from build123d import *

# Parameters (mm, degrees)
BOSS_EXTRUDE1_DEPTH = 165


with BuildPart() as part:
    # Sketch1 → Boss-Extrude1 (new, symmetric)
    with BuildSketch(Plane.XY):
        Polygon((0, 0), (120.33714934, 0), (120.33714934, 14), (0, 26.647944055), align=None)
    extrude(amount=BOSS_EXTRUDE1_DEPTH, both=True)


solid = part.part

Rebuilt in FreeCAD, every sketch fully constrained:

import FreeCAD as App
import Part
import Sketcher
Q = App.Units.Quantity


def add_polygon(sketch, points):
    """Adds a closed chain of lines whose ends are joined by coincident constraints."""
    first, n = sketch.GeometryCount, len(points)
    for a, b in zip(points, points[1:] + points[:1]):
        sketch.addGeometry(Part.LineSegment(App.Vector(*a, 0), App.Vector(*b, 0)), False)
    for i in range(n):
        sketch.addConstraint(Sketcher.Constraint("Coincident", first + i, 2, first + (i + 1) % n, 1))

doc = App.newDocument("Part")
body = doc.addObject("PartDesign::Body", "Body")

# Sketch on XY plane
sketch1 = body.newObject("Sketcher::SketchObject", "Sketch")
sketch1.AttachmentSupport = (doc.getObject("XY_Plane"), [""])
sketch1.MapMode = "FlatFace"
add_polygon(sketch1, [(0, 0), (120, 0), (120, 14), (0, 27)])  # lines 0-3
sketch1.addConstraint([
    Sketcher.Constraint("Horizontal", 0),
    Sketcher.Constraint("Vertical", 1),
    Sketcher.Constraint("Vertical", 3),
    Sketcher.Constraint("Coincident", 3, 2, -1, 1),
    Sketcher.Constraint("DistanceY", 1, 1, 1, 2, Q("14 mm")),
    Sketcher.Constraint("Angle", 2, Q("174 deg")),
    Sketcher.Constraint("Distance", 2, Q("121 mm")),
])
pad1 = body.newObject("PartDesign::Pad", "Pad")
pad1.Profile = sketch1
pad1.Length = 330
pad1.Midplane = True

doc.recompute()
